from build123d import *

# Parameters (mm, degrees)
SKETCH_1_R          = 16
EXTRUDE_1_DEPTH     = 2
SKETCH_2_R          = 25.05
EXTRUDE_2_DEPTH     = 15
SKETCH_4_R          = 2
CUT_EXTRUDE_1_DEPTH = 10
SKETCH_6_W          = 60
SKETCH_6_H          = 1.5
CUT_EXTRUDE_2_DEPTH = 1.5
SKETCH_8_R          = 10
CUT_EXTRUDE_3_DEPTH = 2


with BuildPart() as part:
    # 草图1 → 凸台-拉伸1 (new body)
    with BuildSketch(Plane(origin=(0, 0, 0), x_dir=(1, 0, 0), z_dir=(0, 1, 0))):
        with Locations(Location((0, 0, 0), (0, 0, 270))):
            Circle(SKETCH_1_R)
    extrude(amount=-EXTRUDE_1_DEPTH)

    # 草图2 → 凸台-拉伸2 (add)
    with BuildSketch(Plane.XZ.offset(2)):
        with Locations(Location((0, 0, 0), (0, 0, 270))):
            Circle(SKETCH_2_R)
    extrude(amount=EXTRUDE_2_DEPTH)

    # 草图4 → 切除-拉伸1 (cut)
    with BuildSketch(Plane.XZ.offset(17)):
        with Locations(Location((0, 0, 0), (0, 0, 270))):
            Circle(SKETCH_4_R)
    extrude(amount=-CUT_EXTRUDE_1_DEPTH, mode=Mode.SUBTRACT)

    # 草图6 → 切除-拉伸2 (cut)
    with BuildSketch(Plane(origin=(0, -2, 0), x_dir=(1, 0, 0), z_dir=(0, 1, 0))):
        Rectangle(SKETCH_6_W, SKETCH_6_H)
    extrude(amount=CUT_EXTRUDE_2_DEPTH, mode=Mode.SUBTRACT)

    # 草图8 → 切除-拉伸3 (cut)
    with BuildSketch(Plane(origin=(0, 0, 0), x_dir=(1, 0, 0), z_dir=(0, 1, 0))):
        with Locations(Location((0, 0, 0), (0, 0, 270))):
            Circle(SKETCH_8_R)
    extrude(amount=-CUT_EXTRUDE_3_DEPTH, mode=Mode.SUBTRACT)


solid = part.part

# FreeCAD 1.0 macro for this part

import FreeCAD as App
import Part
import Sketcher
from FreeCAD import Vector
Q = App.Units.Quantity


def add_polygon(sketch, points):
    """Adds a closed chain of lines whose ends are joined by coincident constraints."""
    first, n = sketch.GeometryCount, len(points)
    for a, b in zip(points, points[1:] + points[:1]):
        sketch.addGeometry(Part.LineSegment(App.Vector(*a, 0), App.Vector(*b, 0)), False)
    for i in range(n):
        sketch.addConstraint(Sketcher.Constraint("Coincident", first + i, 2, first + (i + 1) % n, 1))

doc = App.newDocument("Part")
body = doc.addObject("PartDesign::Body", "Body")

sketch1 = body.newObject("Sketcher::SketchObject", "Sketch")
sketch1.AttachmentSupport = (doc.getObject("XZ_Plane"), [""])
sketch1.MapMode = "FlatFace"
sketch1.addGeometry(Part.Circle(Vector(0, 0, 0), Vector(0, 0, 1), 16), False)
sketch1.addConstraint([
    Sketcher.Constraint("Coincident", 0, 3, -1, 1),
    Sketcher.Constraint("Diameter", 0, Q("32 mm")),
])
pad1 = body.newObject("PartDesign::Pad", "Pad")
pad1.Profile = sketch1
pad1.Length = 2

sketch2 = body.newObject("Sketcher::SketchObject", "Sketch001")
sketch2.AttachmentSupport = (doc.getObject("XZ_Plane"), [""])
sketch2.MapMode = "FlatFace"
sketch2.AttachmentOffset = App.Placement(Vector(0, 0, 2), App.Rotation())
sketch2.addGeometry(Part.Circle(Vector(0, 0, 0), Vector(0, 0, 1), 25), False)
sketch2.addConstraint([
    Sketcher.Constraint("Coincident", 0, 3, -1, 1),
    Sketcher.Constraint("Diameter", 0, Q("50.1 mm")),
])
pad2 = body.newObject("PartDesign::Pad", "Pad001")
pad2.Profile = sketch2
pad2.Length = 15

sketch3 = body.newObject("Sketcher::SketchObject", "Sketch002")
sketch3.AttachmentSupport = (doc.getObject("XZ_Plane"), [""])
sketch3.MapMode = "FlatFace"
sketch3.AttachmentOffset = App.Placement(Vector(0, 0, 17), App.Rotation())
sketch3.addGeometry(Part.Circle(Vector(0, 0, 0), Vector(0, 0, 1), 2), False)
sketch3.addConstraint([
    Sketcher.Constraint("Coincident", 0, 3, -1, 1),
    Sketcher.Constraint("Diameter", 0, Q("4 mm")),
])
pocket1 = body.newObject("PartDesign::Pocket", "Pocket")
pocket1.Profile = sketch3
pocket1.Length = 10

sketch4 = body.newObject("Sketcher::SketchObject", "Sketch003")
sketch4.AttachmentSupport = (doc.getObject("XZ_Plane"), [""])
sketch4.MapMode = "FlatFace"
sketch4.AttachmentOffset = App.Placement(Vector(0, 0, 2), App.Rotation())
add_polygon(sketch4, [(-30, -0.8), (-30, 0.8), (30, 0.8), (30, -0.8)])
sketch4.addConstraint([
    Sketcher.Constraint("Vertical", 0),
    Sketcher.Constraint("Horizontal", 1),
    Sketcher.Constraint("Vertical", 2),
    Sketcher.Constraint("Horizontal", 3),
    Sketcher.Constraint("Symmetric", 0, 2, 2, 2, -1, 1),
    Sketcher.Constraint("DistanceX", 1, 1, 1, 2, Q("60 mm")),
    Sketcher.Constraint("DistanceY", 0, 1, 0, 2, Q("1.5 mm")),
])
pocket2 = body.newObject("PartDesign::Pocket", "Pocket001")
pocket2.Profile = sketch4
pocket2.Length = 1.5

sketch5 = body.newObject("Sketcher::SketchObject", "Sketch004")
sketch5.AttachmentSupport = (doc.getObject("XZ_Plane"), [""])
sketch5.MapMode = "FlatFace"
sketch5.addGeometry(Part.Circle(Vector(0, 0, 0), Vector(0, 0, 1), 10), False)
sketch5.addConstraint([
    Sketcher.Constraint("Coincident", 0, 3, -1, 1),
    Sketcher.Constraint("Diameter", 0, Q("20 mm")),
])
pocket3 = body.newObject("PartDesign::Pocket", "Pocket002")
pocket3.Profile = sketch5
pocket3.Length = 2
pocket3.Reversed = True

doc.recompute()
